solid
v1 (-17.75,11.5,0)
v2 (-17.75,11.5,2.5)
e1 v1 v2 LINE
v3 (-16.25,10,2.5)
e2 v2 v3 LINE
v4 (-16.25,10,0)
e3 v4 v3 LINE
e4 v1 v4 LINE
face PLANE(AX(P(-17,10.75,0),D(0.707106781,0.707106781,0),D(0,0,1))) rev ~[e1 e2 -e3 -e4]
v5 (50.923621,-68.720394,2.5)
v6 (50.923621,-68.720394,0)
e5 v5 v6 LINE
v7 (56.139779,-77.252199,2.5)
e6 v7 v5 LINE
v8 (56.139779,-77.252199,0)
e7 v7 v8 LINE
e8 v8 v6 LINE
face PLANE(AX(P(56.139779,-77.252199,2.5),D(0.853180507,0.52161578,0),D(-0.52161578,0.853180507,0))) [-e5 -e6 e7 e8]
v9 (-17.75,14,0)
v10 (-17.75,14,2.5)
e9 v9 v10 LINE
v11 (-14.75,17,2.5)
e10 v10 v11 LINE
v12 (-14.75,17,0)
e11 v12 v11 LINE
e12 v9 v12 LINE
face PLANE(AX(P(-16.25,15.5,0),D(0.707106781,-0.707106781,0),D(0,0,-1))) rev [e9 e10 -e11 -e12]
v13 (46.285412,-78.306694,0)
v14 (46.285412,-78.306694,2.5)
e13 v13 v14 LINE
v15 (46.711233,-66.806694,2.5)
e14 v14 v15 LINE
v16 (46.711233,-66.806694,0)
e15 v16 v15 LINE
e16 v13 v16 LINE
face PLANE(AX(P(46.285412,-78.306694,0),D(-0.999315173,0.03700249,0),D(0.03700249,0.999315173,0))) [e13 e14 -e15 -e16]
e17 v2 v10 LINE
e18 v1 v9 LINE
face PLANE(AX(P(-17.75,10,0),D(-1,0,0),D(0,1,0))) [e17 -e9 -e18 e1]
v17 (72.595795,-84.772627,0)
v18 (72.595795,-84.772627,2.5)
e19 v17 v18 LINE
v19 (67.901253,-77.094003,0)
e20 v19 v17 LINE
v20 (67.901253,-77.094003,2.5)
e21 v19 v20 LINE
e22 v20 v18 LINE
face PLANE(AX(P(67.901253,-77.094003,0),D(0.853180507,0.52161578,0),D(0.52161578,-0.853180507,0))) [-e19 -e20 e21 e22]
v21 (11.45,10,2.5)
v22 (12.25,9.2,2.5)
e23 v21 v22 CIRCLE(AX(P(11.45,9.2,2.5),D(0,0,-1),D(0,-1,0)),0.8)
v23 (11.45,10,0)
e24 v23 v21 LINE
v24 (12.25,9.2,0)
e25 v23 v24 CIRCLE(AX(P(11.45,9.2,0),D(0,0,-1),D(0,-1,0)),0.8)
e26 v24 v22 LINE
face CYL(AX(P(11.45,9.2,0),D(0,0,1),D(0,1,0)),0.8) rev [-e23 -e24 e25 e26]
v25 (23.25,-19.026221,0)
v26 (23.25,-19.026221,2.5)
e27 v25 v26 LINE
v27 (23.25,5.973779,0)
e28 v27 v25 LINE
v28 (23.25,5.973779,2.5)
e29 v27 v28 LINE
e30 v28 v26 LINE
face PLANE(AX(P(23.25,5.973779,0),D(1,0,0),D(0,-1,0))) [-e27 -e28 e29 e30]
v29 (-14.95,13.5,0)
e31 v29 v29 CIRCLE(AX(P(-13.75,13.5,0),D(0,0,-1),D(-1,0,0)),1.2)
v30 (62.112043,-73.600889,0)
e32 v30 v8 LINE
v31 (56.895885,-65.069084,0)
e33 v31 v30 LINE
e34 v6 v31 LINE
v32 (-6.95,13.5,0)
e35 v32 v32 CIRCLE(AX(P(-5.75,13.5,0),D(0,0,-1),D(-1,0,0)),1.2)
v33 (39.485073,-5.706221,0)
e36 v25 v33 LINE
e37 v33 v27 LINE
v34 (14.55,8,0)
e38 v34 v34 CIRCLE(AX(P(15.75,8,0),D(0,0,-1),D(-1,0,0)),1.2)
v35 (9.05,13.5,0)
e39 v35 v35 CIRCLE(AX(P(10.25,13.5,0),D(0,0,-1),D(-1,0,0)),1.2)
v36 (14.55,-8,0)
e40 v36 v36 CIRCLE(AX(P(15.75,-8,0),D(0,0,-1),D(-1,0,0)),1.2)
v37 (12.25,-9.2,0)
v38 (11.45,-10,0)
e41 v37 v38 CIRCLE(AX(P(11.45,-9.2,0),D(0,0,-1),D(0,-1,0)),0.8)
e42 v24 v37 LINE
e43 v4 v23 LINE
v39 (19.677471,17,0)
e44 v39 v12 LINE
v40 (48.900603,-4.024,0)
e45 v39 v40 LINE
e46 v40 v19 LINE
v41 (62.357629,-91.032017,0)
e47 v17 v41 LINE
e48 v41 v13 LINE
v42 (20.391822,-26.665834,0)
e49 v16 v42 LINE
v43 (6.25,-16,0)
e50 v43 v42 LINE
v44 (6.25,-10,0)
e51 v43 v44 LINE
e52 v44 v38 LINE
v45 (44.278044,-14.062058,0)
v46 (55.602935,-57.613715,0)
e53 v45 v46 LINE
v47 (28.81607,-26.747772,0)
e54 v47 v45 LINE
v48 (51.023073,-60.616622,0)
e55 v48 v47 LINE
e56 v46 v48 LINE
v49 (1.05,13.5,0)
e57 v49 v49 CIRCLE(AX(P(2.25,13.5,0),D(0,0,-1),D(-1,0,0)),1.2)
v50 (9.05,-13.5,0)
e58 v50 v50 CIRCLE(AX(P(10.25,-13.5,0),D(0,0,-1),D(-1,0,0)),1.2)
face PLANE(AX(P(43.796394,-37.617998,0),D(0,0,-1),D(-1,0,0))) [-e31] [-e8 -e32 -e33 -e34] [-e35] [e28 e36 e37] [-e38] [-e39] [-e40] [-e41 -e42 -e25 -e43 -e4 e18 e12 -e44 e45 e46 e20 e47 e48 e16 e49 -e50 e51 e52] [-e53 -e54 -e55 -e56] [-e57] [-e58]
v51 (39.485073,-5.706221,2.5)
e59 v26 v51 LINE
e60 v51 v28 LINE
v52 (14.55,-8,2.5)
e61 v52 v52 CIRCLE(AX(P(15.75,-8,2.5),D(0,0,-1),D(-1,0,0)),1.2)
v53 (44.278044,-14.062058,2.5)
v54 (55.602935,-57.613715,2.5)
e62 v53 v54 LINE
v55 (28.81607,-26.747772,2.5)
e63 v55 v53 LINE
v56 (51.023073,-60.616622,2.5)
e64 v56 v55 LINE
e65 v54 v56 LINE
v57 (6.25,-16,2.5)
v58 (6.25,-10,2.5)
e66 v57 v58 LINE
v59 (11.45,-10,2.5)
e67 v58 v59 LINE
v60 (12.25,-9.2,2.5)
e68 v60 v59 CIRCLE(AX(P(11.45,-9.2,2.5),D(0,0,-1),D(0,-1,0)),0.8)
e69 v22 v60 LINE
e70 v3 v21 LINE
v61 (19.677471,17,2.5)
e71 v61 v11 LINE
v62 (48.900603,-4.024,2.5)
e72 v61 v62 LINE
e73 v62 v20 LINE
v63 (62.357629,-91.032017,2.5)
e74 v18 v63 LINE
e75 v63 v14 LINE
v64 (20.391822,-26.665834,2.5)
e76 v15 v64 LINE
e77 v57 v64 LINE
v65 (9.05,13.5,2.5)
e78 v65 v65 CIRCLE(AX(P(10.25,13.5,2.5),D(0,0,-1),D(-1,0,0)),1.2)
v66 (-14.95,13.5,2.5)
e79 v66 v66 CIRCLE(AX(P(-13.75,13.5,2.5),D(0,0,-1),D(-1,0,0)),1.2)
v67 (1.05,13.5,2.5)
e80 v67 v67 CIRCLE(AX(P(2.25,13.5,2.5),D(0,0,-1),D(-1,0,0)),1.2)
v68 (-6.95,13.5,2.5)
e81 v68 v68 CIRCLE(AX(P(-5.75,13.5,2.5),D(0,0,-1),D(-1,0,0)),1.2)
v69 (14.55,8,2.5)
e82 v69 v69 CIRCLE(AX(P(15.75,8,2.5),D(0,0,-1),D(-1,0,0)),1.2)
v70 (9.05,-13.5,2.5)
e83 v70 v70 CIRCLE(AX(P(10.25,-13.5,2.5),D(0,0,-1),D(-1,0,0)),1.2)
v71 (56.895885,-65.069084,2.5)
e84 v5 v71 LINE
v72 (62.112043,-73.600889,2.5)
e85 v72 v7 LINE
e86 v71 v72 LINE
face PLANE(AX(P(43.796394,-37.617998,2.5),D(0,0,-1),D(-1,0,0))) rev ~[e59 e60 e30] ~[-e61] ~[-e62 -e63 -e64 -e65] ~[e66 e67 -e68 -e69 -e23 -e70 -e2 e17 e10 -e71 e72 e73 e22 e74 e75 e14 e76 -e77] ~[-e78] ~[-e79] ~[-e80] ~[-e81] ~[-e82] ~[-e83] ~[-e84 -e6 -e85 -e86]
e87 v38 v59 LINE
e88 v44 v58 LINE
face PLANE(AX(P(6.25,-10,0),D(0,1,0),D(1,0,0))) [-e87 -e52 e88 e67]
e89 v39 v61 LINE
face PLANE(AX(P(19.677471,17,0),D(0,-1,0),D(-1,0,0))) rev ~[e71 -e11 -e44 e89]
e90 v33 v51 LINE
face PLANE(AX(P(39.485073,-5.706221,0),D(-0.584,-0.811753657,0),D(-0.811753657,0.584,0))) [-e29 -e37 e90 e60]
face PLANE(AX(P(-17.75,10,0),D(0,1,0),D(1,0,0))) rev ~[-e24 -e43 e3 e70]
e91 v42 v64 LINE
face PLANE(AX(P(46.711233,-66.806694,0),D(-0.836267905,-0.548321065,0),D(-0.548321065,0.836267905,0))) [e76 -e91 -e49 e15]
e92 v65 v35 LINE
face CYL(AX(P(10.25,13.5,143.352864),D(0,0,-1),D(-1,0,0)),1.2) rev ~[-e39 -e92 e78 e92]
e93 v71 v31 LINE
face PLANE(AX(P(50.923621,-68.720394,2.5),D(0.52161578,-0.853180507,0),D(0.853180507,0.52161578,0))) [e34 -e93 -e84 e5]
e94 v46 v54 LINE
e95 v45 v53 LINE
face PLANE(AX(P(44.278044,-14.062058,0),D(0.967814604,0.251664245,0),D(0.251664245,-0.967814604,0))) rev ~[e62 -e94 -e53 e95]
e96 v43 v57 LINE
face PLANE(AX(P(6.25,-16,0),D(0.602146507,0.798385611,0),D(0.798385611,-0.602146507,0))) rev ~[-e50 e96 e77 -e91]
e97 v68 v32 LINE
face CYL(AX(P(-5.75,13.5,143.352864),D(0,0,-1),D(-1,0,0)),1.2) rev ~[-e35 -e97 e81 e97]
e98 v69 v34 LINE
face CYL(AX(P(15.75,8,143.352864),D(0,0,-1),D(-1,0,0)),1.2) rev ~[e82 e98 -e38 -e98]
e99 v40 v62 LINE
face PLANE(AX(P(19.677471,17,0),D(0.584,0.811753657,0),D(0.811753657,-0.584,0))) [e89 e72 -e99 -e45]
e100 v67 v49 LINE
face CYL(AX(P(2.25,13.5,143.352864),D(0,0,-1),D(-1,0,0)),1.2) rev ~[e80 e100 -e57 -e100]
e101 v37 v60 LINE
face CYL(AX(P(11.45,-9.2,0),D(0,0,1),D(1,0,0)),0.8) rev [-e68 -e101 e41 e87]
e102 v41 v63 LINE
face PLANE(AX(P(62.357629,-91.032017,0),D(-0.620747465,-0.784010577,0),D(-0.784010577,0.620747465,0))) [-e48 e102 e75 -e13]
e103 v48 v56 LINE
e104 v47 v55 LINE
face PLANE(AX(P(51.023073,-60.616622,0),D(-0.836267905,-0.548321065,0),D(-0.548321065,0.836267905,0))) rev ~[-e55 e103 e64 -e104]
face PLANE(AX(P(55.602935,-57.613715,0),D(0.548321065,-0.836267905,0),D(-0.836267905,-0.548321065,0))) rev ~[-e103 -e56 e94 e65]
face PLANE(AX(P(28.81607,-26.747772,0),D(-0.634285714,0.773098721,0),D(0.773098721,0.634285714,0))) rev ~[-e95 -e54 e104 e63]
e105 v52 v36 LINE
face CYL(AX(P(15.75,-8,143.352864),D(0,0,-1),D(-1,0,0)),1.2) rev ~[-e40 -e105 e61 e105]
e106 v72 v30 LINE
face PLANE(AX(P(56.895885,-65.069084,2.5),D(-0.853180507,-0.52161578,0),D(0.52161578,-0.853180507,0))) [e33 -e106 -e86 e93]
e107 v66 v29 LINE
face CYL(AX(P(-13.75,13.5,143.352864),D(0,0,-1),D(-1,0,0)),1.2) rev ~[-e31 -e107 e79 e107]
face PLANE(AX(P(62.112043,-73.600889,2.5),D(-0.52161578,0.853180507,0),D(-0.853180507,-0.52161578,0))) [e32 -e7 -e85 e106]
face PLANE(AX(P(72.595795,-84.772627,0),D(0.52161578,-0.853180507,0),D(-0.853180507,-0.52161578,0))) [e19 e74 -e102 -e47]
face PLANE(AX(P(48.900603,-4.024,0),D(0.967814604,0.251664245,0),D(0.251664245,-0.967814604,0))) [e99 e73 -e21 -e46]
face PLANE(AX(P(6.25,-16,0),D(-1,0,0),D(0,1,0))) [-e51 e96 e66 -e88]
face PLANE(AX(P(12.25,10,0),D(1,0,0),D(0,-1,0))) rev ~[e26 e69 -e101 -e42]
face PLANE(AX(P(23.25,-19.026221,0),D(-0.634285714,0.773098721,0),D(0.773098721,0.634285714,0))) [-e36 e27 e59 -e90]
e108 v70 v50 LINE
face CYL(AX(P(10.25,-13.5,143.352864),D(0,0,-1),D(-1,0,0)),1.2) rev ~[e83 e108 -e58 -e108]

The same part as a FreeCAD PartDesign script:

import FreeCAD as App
import Part
import Sketcher

V = App.Vector


def edges_at(feature, points):
    """Names of the edges that pass closest to the given points."""
    edges = feature.Shape.Edges
    near = lambda p: min(range(len(edges)), key=lambda i: edges[i].distToShape(Part.Vertex(*p))[0])
    return sorted({f"Edge{near(p) + 1}" for p in points})

doc = App.newDocument("Part")
body = doc.addObject("PartDesign::Body", "Body")

sketch1 = body.newObject("Sketcher::SketchObject", "Sketch")
sketch1.AttachmentSupport = (doc.getObject("XY_Plane"), [""])
sketch1.MapMode = "FlatFace"
sketch1.addGeometry([
    Part.LineSegment(V(49, -4, 0), V(20, 17, 0)),
    Part.LineSegment(V(20, 17, 0), V(-18, 17, 0)),
    Part.LineSegment(V(-18, 17, 0), V(-18, 10, 0)),
    Part.LineSegment(V(-18, 10, 0), V(12, 10, 0)),
    Part.LineSegment(V(12, 10, 0), V(12, -10, 0)),
    Part.LineSegment(V(12, -10, 0), V(6, -10, 0)),
    Part.LineSegment(V(6, -10, 0), V(6, -16, 0)),
    Part.LineSegment(V(6, -16, 0), V(20, -27, 0)),
    Part.LineSegment(V(20, -27, 0), V(47, -67, 0)),
    Part.LineSegment(V(47, -67, 0), V(46, -78, 0)),
    Part.LineSegment(V(46, -78, 0), V(62, -91, 0)),
    Part.LineSegment(V(62, -91, 0), V(73, -85, 0)),
    Part.LineSegment(V(73, -85, 0), V(68, -77, 0)),
    Part.LineSegment(V(68, -77, 0), V(49, -4, 0)),
    Part.LineSegment(V(51, -61, 0), V(29, -27, 0)),
    Part.LineSegment(V(29, -27, 0), V(44, -14, 0)),
    Part.LineSegment(V(44, -14, 0), V(56, -58, 0)),
    Part.LineSegment(V(56, -58, 0), V(51, -61, 0)),
    Part.LineSegment(V(39, -6, 0), V(23, -19, 0)),
    Part.LineSegment(V(23, -19, 0), V(23, 6, 0)),
    Part.LineSegment(V(23, 6, 0), V(39, -6, 0)),
], False)
sketch1.addConstraint([
    Sketcher.Constraint("Coincident", 0, 2, 1, 1),
    Sketcher.Constraint("Coincident", 1, 2, 2, 1),
    Sketcher.Constraint("Coincident", 2, 2, 3, 1),
    Sketcher.Constraint("Coincident", 3, 2, 4, 1),
    Sketcher.Constraint("Coincident", 4, 2, 5, 1),
    Sketcher.Constraint("Coincident", 5, 2, 6, 1),
    Sketcher.Constraint("Coincident", 6, 2, 7, 1),
    Sketcher.Constraint("Coincident", 7, 2, 8, 1),
    Sketcher.Constraint("Coincident", 8, 2, 9, 1),
    Sketcher.Constraint("Coincident", 9, 2, 10, 1),
    Sketcher.Constraint("Coincident", 10, 2, 11, 1),
    Sketcher.Constraint("Coincident", 11, 2, 12, 1),
    Sketcher.Constraint("Coincident", 12, 2, 13, 1),
    Sketcher.Constraint("Coincident", 13, 2, 0, 1),
    Sketcher.Constraint("Coincident", 14, 2, 15, 1),
    Sketcher.Constraint("Coincident", 15, 2, 16, 1),
    Sketcher.Constraint("Coincident", 16, 2, 17, 1),
    Sketcher.Constraint("Coincident", 17, 2, 14, 1),
    Sketcher.Constraint("Coincident", 18, 2, 19, 1),
    Sketcher.Constraint("Coincident", 19, 2, 20, 1),
    Sketcher.Constraint("Coincident", 20, 2, 18, 1),
    Sketcher.Constraint("Horizontal", 1),
    Sketcher.Constraint("Vertical", 2),
    Sketcher.Constraint("Horizontal", 3),
    Sketcher.Constraint("Vertical", 4),
    Sketcher.Constraint("Horizontal", 5),
    Sketcher.Constraint("Vertical", 6),
    Sketcher.Constraint("Vertical", 19),
    Sketcher.Constraint("Perpendicular", 11, 12),
    Sketcher.Constraint("Parallel", 8, 14),
    Sketcher.Constraint("Parallel", 13, 16),
    Sketcher.Constraint("Perpendicular", 14, 17),
    Sketcher.Constraint("Parallel", 15, 18),
    Sketcher.Constraint("Parallel", 0, 20),
    Sketcher.Constraint("Equal", 5, 6),
    Sketcher.Constraint("Equal", 15, 20),
    Sketcher.Constraint("DistanceX", 3, 1, 3, 2, 30.0),
    Sketcher.Constraint("DistanceX", 5, 2, 5, 1, 6.0),
    Sketcher.Constraint("DistanceY", 2, 2, 2, 1, 7.0),
    Sketcher.Constraint("DistanceY", 4, 2, 4, 1, 20.0),
    Sketcher.Constraint("DistanceY", 19, 1, 19, 2, 25.0),
    Sketcher.Constraint("Distance", 0, 36.0),
    Sketcher.Constraint("Distance", 8, 48.0),
    Sketcher.Constraint("Distance", 11, 12.0),
    Sketcher.Constraint("Distance", 12, 9.0),
    Sketcher.Constraint("Distance", 15, 20.0),
    Sketcher.Constraint("Distance", 16, 45.0),
    Sketcher.Constraint("Distance", 18, 21.0),
    Sketcher.Constraint("DistanceY", -1, 1, 0, 2, 17.0),
    Sketcher.Constraint("DistanceX", 4, 2, 18, 2, 11.0),
    Sketcher.Constraint("Distance", 10, 20.5),
    Sketcher.Constraint("Distance", 13, 75.5),
    Sketcher.Constraint("Distance", 14, 40.5),
    Sketcher.Constraint("DistanceY", 9, 2, 8, 2, 11.5),
    Sketcher.Constraint("DistanceX", 1, 2, -1, 1, 17.75),
    Sketcher.Constraint("DistanceX", 1, 2, 1, 1, 37.427471),
    Sketcher.Constraint("DistanceY", 10, 2, 16, 2, 33.418301),
    Sketcher.Constraint("Distance", 7, 17.713022),
    Sketcher.Constraint("Distance", 9, 11.507881),
    Sketcher.Constraint("Distance", 17, 5.476549),
    Sketcher.Constraint("DistanceX", -1, 1, 7, 2, 20.391822),
    Sketcher.Constraint("DistanceX", -1, 1, 14, 2, 28.81607),
    Sketcher.Constraint("DistanceY", 18, 2, -1, 1, 19.026221),
])
pad1 = body.newObject("PartDesign::Pad", "Pad")
pad1.Profile = sketch1
pad1.Length = 2.5

sketch2 = body.newObject("Sketcher::SketchObject", "Sketch001")
sketch2.AttachmentSupport = (doc.getObject("XY_Plane"), [""])
sketch2.MapMode = "FlatFace"
sketch2.AttachmentOffset = App.Placement(V(0, 0, 2.5), App.Rotation())
sketch2.addGeometry([
    Part.Circle(V(-13.8, 13.5, 0), V(0, 0, 1), 1.2),
    Part.Circle(V(-5.8, 13.5, 0), V(0, 0, 1), 1.2),
    Part.Circle(V(2.2, 13.5, 0), V(0, 0, 1), 1.2),
    Part.Circle(V(10.2, 13.5, 0), V(0, 0, 1), 1.2),
    Part.Circle(V(15.8, 8, 0), V(0, 0, 1), 1.2),
    Part.Circle(V(15.8, -8, 0), V(0, 0, 1), 1.2),
    Part.Circle(V(10.2, -13.5, 0), V(0, 0, 1), 1.2),
], False)
sketch2.addConstraint([
    Sketcher.Constraint("Equal", 0, 1),
    Sketcher.Constraint("Equal", 1, 2),
    Sketcher.Constraint("Equal", 2, 3),
    Sketcher.Constraint("Equal", 3, 4),
    Sketcher.Constraint("Equal", 4, 5),
    Sketcher.Constraint("Equal", 5, 6),
    Sketcher.Constraint("Symmetric", 4, 3, 5, 3, -1),
    Sketcher.Constraint("Symmetric", 3, 3, 6, 3, -1),
    Sketcher.Constraint("Horizontal", 0, 3, 1, 3),
    Sketcher.Constraint("Horizontal", 1, 3, 2, 3),
    Sketcher.Constraint("Horizontal", 2, 3, 3, 3),
    Sketcher.Constraint("Diameter", 0, 2.4),
    Sketcher.Constraint("DistanceY", -1, 1, 4, 3, 8.0),
    Sketcher.Constraint("DistanceX", 0, 3, 1, 3, 8.0),
    Sketcher.Constraint("DistanceX", 1, 3, 2, 3, 8.0),
    Sketcher.Constraint("DistanceX", 2, 3, 3, 3, 8.0),
    Sketcher.Constraint("DistanceY", 6, 3, 3, 3, 27.0),
    Sketcher.Constraint("DistanceX", 3, 3, 4, 3, 5.5),
    Sketcher.Constraint("DistanceX", 0, 3, -1, 1, 13.75),
])
doc.recompute()
hole = body.newObject("PartDesign::Hole", "Hole")
hole.Profile = sketch2
hole.ThreadType = "None"
hole.Diameter = 2.4
hole.DepthType = "ThroughAll"
doc.recompute()

chamfer = body.newObject("PartDesign::Chamfer", "Chamfer")
chamfer.Base = (hole, edges_at(hole, [(-17.75, 10, 1.25)]))
chamfer.Size = 1.5
doc.recompute()

chamfer2 = body.newObject("PartDesign::Chamfer", "Chamfer001")
chamfer2.Base = (chamfer, edges_at(chamfer, [(-17.75, 17, 1.25)]))
chamfer2.Size = 3
doc.recompute()

fillet = body.newObject("PartDesign::Fillet", "Fillet")
fillet.Base = (chamfer2, edges_at(chamfer2, [(12.25, -10, 1.25), (12.25, 10, 1.25)]))
fillet.Radius = 0.8

sketch3 = body.newObject("Sketcher::SketchObject", "Sketch002")
sketch3.AttachmentSupport = (doc.getObject("XY_Plane"), [""])
sketch3.MapMode = "FlatFace"
sketch3.AttachmentOffset = App.Placement(V(0, 0, 2.5), App.Rotation())
sketch3.addGeometry([
    Part.LineSegment(V(57, -65, 0), V(51, -69, 0)),
    Part.LineSegment(V(51, -69, 0), V(56, -77, 0)),
    Part.LineSegment(V(56, -77, 0), V(62, -74, 0)),
    Part.LineSegment(V(62, -74, 0), V(57, -65, 0)),
], False)
sketch3.addConstraint([
    Sketcher.Constraint("Coincident", 0, 2, 1, 1),
    Sketcher.Constraint("Coincident", 1, 2, 2, 1),
    Sketcher.Constraint("Coincident", 2, 2, 3, 1),
    Sketcher.Constraint("Coincident", 3, 2, 0, 1),
    Sketcher.Constraint("Perpendicular", 0, 1),
    Sketcher.Constraint("Perpendicular", 1, 2),
    Sketcher.Constraint("Perpendicular", 2, 3),
    Sketcher.Constraint("Distance", 0, 7.0),
    Sketcher.Constraint("Distance", 1, 10.0),
    Sketcher.Constraint("DistanceY", 1, 2, -1, 1, 77.252199),
    Sketcher.Constraint("DistanceX", -1, 1, 0, 2, 50.923621),
    Sketcher.Constraint("DistanceX", -1, 1, 1, 2, 56.139779),
])
pocket1 = body.newObject("PartDesign::Pocket", "Pocket")
pocket1.Profile = sketch3
pocket1.Type = "UpToFirst"

doc.recompute()
